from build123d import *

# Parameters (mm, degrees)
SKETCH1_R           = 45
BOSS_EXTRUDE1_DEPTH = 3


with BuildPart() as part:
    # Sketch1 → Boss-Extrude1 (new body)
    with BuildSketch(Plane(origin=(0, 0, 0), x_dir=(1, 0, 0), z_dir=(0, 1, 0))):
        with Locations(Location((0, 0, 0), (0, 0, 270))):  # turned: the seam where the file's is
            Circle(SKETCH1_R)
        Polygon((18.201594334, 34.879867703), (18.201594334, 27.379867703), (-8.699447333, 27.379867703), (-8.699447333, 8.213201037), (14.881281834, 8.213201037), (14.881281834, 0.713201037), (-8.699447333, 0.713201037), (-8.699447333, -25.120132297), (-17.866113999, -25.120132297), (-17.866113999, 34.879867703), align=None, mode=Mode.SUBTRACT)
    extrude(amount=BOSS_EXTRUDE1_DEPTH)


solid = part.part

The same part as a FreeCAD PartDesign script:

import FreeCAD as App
import Part
import Sketcher
from FreeCAD import Vector


def add_polygon(sketch, points):
    """Adds a closed chain of lines whose ends are joined by coincident constraints."""
    first, n = sketch.GeometryCount, len(points)
    for a, b in zip(points, points[1:] + points[:1]):
        sketch.addGeometry(Part.LineSegment(App.Vector(*a, 0), App.Vector(*b, 0)), False)
    for i in range(n):
        sketch.addConstraint(Sketcher.Constraint("Coincident", first + i, 2, first + (i + 1) % n, 1))

doc = App.newDocument("Part")
body = doc.addObject("PartDesign::Body", "Body")

sketch1 = doc.addObject("Sketcher::SketchObject", "Sketch")
body.addObject(sketch1)
sketch1.AttachmentSupport = (doc.XZ_Plane, [""])
sketch1.MapMode = "FlatFace"
sketch1.addGeometry(Part.Circle(Vector(0, 0, 0), Vector(0, 0, 1), 45), False)
add_polygon(sketch1, [(-18, -35), (18, -35), (18, -27), (-9, -27), (-9, -8), (15, -8), (15, -1), (-9, -1), (-9, 25), (-18, 25)])
sketch1.addConstraint([
    Sketcher.Constraint("Horizontal", 1),
    Sketcher.Constraint("Vertical", 2),
    Sketcher.Constraint("Horizontal", 3),
    Sketcher.Constraint("Vertical", 4),
    Sketcher.Constraint("Horizontal", 5),
    Sketcher.Constraint("Vertical", 6),
    Sketcher.Constraint("Horizontal", 7),
    Sketcher.Constraint("Vertical", 8),
    Sketcher.Constraint("Horizontal", 9),
    Sketcher.Constraint("Vertical", 10),
    Sketcher.Constraint("Coincident", 0, 3, -1, 1),
    Sketcher.Constraint("Vertical", 4, 2, 7, 2),
    Sketcher.Constraint("Equal", 2, 6),
    Sketcher.Constraint("Diameter", 0, 90.0),
    Sketcher.Constraint("DistanceY", 10, 2, 10, 1, 60.0),
    Sketcher.Constraint("DistanceY", 2, 1, 2, 2, 7.5),
    Sketcher.Constraint("DistanceX", 1, 1, 1, 2, 36.067708),
    Sketcher.Constraint("DistanceX", 3, 2, 3, 1, 26.901042),
    Sketcher.Constraint("DistanceX", 5, 1, 5, 2, 23.580729),
    Sketcher.Constraint("DistanceY", 4, 2, -1, 1, 8.213201),
    Sketcher.Constraint("DistanceY", 4, 1, 4, 2, 19.166667),
    Sketcher.Constraint("DistanceX", -1, 1, 5, 2, 14.881282),
])
pad1 = doc.addObject("PartDesign::Pad", "Pad")
body.addObject(pad1)
pad1.Profile = sketch1
pad1.Length = 3
pad1.Reversed = True

doc.recompute()
